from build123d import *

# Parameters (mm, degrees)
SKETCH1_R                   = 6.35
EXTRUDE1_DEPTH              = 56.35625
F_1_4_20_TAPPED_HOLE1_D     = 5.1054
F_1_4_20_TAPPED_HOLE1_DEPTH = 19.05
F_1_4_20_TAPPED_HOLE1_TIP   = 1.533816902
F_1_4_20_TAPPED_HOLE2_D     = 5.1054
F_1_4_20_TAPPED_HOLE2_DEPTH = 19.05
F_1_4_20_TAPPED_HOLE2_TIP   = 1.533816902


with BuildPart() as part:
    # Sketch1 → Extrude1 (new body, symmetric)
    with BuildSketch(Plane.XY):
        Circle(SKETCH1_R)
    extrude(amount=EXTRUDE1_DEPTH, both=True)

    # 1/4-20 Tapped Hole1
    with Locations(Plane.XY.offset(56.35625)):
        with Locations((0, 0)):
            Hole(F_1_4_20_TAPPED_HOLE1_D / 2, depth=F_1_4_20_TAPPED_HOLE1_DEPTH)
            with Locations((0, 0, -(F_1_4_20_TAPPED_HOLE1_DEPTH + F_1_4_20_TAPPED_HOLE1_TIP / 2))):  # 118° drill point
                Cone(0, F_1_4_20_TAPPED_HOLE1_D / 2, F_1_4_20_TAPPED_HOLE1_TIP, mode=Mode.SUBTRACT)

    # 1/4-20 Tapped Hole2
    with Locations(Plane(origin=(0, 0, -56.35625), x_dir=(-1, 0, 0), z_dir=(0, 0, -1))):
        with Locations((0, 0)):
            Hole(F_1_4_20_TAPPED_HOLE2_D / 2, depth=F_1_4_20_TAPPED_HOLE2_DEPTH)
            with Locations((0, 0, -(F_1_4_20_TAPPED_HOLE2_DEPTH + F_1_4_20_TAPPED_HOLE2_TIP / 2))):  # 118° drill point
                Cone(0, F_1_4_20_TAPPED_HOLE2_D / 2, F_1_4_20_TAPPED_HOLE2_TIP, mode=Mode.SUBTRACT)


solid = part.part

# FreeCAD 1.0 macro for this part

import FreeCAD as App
import Part
import Sketcher

V = App.Vector
Q = App.Units.Quantity

doc = App.newDocument("Part")
params = doc.addObject("Spreadsheet::Sheet", "Params")
for row, (alias, value) in enumerate([
    ("sketch1_diameter", "0.5 in"),
    ("pad1_length", "4.4375 in"),
    ("sketch2_diameter", "0.201 in"),
    ("hole_diameter", "0.201 in"),
    ("hole_depth", "0.75 in"),
    ("sketch3_diameter", "0.201 in"),
    ("hole2_diameter", "0.201 in"),
    ("hole2_depth", "0.75 in"),
], start=1):
    params.set(f"A{row}", alias)
    params.set(f"B{row}", "=" + value)
    params.setAlias(f"B{row}", alias)

body = doc.addObject("PartDesign::Body", "Body")

# Sketch on XY plane
sketch1 = doc.addObject("Sketcher::SketchObject", "Sketch")
body.addObject(sketch1)
sketch1.AttachmentSupport = (doc.XY_Plane, [""])
sketch1.MapMode = "FlatFace"
sketch1.addGeometry(Part.Circle(V(0, 0, 0), V(0, 0, 1), 6), False)
sketch1.addConstraint([
    Sketcher.Constraint("Coincident", 0, 3, -1, 1),
    Sketcher.Constraint("Diameter", 0, Q("0.5 in")),
])
sketch1.setExpression("Constraints[1]", "Params.sketch1_diameter")
pad1 = doc.addObject("PartDesign::Pad", "Pad")
body.addObject(pad1)
pad1.Profile = sketch1
pad1.setExpression("Length", "Params.pad1_length")
pad1.Midplane = True

# Sketch on XY plane
sketch2 = doc.addObject("Sketcher::SketchObject", "Sketch001")
body.addObject(sketch2)
sketch2.AttachmentSupport = (doc.XY_Plane, [""])
sketch2.MapMode = "FlatFace"
sketch2.AttachmentOffset = App.Placement(V(0, 0, 2.21875 * 25.4), App.Rotation())
sketch2.addGeometry(Part.Circle(V(0, 0, 0), V(0, 0, 1), 2.6), False)
sketch2.addConstraint([
    Sketcher.Constraint("Coincident", 0, 3, -1, 1),
    Sketcher.Constraint("Diameter", 0, Q("0.201 in")),
])
sketch2.setExpression("Constraints[1]", "Params.sketch2_diameter")
doc.recompute()
hole = doc.addObject("PartDesign::Hole", "Hole")
body.addObject(hole)
hole.Profile = sketch2
hole.ThreadType = "None"
hole.setExpression("Diameter", "Params.hole_diameter")
hole.DepthType = "Dimension"
hole.setExpression("Depth", "Params.hole_depth")
hole.DrillPoint = "Angled"
hole.DrillPointAngle = 118

# Sketch on XY plane
sketch3 = doc.addObject("Sketcher::SketchObject", "Sketch002")
body.addObject(sketch3)
sketch3.AttachmentSupport = (doc.XY_Plane, [""])
sketch3.MapMode = "FlatFace"
sketch3.AttachmentOffset = App.Placement(V(0, 0, -2.21875 * 25.4), App.Rotation())
sketch3.addGeometry(Part.Circle(V(0, 0, 0), V(0, 0, 1), 2.6), False)
sketch3.addConstraint([
    Sketcher.Constraint("Coincident", 0, 3, -1, 1),
    Sketcher.Constraint("Diameter", 0, Q("0.201 in")),
])
sketch3.setExpression("Constraints[1]", "Params.sketch3_diameter")
doc.recompute()
hole2 = doc.addObject("PartDesign::Hole", "Hole001")
body.addObject(hole2)
hole2.Profile = sketch3
hole2.ThreadType = "None"
hole2.setExpression("Diameter", "Params.hole2_diameter")
hole2.DepthType = "Dimension"
hole2.setExpression("Depth", "Params.hole2_depth")
hole2.DrillPoint = "Angled"
hole2.DrillPointAngle = 118
hole2.Reversed = True

doc.recompute()
